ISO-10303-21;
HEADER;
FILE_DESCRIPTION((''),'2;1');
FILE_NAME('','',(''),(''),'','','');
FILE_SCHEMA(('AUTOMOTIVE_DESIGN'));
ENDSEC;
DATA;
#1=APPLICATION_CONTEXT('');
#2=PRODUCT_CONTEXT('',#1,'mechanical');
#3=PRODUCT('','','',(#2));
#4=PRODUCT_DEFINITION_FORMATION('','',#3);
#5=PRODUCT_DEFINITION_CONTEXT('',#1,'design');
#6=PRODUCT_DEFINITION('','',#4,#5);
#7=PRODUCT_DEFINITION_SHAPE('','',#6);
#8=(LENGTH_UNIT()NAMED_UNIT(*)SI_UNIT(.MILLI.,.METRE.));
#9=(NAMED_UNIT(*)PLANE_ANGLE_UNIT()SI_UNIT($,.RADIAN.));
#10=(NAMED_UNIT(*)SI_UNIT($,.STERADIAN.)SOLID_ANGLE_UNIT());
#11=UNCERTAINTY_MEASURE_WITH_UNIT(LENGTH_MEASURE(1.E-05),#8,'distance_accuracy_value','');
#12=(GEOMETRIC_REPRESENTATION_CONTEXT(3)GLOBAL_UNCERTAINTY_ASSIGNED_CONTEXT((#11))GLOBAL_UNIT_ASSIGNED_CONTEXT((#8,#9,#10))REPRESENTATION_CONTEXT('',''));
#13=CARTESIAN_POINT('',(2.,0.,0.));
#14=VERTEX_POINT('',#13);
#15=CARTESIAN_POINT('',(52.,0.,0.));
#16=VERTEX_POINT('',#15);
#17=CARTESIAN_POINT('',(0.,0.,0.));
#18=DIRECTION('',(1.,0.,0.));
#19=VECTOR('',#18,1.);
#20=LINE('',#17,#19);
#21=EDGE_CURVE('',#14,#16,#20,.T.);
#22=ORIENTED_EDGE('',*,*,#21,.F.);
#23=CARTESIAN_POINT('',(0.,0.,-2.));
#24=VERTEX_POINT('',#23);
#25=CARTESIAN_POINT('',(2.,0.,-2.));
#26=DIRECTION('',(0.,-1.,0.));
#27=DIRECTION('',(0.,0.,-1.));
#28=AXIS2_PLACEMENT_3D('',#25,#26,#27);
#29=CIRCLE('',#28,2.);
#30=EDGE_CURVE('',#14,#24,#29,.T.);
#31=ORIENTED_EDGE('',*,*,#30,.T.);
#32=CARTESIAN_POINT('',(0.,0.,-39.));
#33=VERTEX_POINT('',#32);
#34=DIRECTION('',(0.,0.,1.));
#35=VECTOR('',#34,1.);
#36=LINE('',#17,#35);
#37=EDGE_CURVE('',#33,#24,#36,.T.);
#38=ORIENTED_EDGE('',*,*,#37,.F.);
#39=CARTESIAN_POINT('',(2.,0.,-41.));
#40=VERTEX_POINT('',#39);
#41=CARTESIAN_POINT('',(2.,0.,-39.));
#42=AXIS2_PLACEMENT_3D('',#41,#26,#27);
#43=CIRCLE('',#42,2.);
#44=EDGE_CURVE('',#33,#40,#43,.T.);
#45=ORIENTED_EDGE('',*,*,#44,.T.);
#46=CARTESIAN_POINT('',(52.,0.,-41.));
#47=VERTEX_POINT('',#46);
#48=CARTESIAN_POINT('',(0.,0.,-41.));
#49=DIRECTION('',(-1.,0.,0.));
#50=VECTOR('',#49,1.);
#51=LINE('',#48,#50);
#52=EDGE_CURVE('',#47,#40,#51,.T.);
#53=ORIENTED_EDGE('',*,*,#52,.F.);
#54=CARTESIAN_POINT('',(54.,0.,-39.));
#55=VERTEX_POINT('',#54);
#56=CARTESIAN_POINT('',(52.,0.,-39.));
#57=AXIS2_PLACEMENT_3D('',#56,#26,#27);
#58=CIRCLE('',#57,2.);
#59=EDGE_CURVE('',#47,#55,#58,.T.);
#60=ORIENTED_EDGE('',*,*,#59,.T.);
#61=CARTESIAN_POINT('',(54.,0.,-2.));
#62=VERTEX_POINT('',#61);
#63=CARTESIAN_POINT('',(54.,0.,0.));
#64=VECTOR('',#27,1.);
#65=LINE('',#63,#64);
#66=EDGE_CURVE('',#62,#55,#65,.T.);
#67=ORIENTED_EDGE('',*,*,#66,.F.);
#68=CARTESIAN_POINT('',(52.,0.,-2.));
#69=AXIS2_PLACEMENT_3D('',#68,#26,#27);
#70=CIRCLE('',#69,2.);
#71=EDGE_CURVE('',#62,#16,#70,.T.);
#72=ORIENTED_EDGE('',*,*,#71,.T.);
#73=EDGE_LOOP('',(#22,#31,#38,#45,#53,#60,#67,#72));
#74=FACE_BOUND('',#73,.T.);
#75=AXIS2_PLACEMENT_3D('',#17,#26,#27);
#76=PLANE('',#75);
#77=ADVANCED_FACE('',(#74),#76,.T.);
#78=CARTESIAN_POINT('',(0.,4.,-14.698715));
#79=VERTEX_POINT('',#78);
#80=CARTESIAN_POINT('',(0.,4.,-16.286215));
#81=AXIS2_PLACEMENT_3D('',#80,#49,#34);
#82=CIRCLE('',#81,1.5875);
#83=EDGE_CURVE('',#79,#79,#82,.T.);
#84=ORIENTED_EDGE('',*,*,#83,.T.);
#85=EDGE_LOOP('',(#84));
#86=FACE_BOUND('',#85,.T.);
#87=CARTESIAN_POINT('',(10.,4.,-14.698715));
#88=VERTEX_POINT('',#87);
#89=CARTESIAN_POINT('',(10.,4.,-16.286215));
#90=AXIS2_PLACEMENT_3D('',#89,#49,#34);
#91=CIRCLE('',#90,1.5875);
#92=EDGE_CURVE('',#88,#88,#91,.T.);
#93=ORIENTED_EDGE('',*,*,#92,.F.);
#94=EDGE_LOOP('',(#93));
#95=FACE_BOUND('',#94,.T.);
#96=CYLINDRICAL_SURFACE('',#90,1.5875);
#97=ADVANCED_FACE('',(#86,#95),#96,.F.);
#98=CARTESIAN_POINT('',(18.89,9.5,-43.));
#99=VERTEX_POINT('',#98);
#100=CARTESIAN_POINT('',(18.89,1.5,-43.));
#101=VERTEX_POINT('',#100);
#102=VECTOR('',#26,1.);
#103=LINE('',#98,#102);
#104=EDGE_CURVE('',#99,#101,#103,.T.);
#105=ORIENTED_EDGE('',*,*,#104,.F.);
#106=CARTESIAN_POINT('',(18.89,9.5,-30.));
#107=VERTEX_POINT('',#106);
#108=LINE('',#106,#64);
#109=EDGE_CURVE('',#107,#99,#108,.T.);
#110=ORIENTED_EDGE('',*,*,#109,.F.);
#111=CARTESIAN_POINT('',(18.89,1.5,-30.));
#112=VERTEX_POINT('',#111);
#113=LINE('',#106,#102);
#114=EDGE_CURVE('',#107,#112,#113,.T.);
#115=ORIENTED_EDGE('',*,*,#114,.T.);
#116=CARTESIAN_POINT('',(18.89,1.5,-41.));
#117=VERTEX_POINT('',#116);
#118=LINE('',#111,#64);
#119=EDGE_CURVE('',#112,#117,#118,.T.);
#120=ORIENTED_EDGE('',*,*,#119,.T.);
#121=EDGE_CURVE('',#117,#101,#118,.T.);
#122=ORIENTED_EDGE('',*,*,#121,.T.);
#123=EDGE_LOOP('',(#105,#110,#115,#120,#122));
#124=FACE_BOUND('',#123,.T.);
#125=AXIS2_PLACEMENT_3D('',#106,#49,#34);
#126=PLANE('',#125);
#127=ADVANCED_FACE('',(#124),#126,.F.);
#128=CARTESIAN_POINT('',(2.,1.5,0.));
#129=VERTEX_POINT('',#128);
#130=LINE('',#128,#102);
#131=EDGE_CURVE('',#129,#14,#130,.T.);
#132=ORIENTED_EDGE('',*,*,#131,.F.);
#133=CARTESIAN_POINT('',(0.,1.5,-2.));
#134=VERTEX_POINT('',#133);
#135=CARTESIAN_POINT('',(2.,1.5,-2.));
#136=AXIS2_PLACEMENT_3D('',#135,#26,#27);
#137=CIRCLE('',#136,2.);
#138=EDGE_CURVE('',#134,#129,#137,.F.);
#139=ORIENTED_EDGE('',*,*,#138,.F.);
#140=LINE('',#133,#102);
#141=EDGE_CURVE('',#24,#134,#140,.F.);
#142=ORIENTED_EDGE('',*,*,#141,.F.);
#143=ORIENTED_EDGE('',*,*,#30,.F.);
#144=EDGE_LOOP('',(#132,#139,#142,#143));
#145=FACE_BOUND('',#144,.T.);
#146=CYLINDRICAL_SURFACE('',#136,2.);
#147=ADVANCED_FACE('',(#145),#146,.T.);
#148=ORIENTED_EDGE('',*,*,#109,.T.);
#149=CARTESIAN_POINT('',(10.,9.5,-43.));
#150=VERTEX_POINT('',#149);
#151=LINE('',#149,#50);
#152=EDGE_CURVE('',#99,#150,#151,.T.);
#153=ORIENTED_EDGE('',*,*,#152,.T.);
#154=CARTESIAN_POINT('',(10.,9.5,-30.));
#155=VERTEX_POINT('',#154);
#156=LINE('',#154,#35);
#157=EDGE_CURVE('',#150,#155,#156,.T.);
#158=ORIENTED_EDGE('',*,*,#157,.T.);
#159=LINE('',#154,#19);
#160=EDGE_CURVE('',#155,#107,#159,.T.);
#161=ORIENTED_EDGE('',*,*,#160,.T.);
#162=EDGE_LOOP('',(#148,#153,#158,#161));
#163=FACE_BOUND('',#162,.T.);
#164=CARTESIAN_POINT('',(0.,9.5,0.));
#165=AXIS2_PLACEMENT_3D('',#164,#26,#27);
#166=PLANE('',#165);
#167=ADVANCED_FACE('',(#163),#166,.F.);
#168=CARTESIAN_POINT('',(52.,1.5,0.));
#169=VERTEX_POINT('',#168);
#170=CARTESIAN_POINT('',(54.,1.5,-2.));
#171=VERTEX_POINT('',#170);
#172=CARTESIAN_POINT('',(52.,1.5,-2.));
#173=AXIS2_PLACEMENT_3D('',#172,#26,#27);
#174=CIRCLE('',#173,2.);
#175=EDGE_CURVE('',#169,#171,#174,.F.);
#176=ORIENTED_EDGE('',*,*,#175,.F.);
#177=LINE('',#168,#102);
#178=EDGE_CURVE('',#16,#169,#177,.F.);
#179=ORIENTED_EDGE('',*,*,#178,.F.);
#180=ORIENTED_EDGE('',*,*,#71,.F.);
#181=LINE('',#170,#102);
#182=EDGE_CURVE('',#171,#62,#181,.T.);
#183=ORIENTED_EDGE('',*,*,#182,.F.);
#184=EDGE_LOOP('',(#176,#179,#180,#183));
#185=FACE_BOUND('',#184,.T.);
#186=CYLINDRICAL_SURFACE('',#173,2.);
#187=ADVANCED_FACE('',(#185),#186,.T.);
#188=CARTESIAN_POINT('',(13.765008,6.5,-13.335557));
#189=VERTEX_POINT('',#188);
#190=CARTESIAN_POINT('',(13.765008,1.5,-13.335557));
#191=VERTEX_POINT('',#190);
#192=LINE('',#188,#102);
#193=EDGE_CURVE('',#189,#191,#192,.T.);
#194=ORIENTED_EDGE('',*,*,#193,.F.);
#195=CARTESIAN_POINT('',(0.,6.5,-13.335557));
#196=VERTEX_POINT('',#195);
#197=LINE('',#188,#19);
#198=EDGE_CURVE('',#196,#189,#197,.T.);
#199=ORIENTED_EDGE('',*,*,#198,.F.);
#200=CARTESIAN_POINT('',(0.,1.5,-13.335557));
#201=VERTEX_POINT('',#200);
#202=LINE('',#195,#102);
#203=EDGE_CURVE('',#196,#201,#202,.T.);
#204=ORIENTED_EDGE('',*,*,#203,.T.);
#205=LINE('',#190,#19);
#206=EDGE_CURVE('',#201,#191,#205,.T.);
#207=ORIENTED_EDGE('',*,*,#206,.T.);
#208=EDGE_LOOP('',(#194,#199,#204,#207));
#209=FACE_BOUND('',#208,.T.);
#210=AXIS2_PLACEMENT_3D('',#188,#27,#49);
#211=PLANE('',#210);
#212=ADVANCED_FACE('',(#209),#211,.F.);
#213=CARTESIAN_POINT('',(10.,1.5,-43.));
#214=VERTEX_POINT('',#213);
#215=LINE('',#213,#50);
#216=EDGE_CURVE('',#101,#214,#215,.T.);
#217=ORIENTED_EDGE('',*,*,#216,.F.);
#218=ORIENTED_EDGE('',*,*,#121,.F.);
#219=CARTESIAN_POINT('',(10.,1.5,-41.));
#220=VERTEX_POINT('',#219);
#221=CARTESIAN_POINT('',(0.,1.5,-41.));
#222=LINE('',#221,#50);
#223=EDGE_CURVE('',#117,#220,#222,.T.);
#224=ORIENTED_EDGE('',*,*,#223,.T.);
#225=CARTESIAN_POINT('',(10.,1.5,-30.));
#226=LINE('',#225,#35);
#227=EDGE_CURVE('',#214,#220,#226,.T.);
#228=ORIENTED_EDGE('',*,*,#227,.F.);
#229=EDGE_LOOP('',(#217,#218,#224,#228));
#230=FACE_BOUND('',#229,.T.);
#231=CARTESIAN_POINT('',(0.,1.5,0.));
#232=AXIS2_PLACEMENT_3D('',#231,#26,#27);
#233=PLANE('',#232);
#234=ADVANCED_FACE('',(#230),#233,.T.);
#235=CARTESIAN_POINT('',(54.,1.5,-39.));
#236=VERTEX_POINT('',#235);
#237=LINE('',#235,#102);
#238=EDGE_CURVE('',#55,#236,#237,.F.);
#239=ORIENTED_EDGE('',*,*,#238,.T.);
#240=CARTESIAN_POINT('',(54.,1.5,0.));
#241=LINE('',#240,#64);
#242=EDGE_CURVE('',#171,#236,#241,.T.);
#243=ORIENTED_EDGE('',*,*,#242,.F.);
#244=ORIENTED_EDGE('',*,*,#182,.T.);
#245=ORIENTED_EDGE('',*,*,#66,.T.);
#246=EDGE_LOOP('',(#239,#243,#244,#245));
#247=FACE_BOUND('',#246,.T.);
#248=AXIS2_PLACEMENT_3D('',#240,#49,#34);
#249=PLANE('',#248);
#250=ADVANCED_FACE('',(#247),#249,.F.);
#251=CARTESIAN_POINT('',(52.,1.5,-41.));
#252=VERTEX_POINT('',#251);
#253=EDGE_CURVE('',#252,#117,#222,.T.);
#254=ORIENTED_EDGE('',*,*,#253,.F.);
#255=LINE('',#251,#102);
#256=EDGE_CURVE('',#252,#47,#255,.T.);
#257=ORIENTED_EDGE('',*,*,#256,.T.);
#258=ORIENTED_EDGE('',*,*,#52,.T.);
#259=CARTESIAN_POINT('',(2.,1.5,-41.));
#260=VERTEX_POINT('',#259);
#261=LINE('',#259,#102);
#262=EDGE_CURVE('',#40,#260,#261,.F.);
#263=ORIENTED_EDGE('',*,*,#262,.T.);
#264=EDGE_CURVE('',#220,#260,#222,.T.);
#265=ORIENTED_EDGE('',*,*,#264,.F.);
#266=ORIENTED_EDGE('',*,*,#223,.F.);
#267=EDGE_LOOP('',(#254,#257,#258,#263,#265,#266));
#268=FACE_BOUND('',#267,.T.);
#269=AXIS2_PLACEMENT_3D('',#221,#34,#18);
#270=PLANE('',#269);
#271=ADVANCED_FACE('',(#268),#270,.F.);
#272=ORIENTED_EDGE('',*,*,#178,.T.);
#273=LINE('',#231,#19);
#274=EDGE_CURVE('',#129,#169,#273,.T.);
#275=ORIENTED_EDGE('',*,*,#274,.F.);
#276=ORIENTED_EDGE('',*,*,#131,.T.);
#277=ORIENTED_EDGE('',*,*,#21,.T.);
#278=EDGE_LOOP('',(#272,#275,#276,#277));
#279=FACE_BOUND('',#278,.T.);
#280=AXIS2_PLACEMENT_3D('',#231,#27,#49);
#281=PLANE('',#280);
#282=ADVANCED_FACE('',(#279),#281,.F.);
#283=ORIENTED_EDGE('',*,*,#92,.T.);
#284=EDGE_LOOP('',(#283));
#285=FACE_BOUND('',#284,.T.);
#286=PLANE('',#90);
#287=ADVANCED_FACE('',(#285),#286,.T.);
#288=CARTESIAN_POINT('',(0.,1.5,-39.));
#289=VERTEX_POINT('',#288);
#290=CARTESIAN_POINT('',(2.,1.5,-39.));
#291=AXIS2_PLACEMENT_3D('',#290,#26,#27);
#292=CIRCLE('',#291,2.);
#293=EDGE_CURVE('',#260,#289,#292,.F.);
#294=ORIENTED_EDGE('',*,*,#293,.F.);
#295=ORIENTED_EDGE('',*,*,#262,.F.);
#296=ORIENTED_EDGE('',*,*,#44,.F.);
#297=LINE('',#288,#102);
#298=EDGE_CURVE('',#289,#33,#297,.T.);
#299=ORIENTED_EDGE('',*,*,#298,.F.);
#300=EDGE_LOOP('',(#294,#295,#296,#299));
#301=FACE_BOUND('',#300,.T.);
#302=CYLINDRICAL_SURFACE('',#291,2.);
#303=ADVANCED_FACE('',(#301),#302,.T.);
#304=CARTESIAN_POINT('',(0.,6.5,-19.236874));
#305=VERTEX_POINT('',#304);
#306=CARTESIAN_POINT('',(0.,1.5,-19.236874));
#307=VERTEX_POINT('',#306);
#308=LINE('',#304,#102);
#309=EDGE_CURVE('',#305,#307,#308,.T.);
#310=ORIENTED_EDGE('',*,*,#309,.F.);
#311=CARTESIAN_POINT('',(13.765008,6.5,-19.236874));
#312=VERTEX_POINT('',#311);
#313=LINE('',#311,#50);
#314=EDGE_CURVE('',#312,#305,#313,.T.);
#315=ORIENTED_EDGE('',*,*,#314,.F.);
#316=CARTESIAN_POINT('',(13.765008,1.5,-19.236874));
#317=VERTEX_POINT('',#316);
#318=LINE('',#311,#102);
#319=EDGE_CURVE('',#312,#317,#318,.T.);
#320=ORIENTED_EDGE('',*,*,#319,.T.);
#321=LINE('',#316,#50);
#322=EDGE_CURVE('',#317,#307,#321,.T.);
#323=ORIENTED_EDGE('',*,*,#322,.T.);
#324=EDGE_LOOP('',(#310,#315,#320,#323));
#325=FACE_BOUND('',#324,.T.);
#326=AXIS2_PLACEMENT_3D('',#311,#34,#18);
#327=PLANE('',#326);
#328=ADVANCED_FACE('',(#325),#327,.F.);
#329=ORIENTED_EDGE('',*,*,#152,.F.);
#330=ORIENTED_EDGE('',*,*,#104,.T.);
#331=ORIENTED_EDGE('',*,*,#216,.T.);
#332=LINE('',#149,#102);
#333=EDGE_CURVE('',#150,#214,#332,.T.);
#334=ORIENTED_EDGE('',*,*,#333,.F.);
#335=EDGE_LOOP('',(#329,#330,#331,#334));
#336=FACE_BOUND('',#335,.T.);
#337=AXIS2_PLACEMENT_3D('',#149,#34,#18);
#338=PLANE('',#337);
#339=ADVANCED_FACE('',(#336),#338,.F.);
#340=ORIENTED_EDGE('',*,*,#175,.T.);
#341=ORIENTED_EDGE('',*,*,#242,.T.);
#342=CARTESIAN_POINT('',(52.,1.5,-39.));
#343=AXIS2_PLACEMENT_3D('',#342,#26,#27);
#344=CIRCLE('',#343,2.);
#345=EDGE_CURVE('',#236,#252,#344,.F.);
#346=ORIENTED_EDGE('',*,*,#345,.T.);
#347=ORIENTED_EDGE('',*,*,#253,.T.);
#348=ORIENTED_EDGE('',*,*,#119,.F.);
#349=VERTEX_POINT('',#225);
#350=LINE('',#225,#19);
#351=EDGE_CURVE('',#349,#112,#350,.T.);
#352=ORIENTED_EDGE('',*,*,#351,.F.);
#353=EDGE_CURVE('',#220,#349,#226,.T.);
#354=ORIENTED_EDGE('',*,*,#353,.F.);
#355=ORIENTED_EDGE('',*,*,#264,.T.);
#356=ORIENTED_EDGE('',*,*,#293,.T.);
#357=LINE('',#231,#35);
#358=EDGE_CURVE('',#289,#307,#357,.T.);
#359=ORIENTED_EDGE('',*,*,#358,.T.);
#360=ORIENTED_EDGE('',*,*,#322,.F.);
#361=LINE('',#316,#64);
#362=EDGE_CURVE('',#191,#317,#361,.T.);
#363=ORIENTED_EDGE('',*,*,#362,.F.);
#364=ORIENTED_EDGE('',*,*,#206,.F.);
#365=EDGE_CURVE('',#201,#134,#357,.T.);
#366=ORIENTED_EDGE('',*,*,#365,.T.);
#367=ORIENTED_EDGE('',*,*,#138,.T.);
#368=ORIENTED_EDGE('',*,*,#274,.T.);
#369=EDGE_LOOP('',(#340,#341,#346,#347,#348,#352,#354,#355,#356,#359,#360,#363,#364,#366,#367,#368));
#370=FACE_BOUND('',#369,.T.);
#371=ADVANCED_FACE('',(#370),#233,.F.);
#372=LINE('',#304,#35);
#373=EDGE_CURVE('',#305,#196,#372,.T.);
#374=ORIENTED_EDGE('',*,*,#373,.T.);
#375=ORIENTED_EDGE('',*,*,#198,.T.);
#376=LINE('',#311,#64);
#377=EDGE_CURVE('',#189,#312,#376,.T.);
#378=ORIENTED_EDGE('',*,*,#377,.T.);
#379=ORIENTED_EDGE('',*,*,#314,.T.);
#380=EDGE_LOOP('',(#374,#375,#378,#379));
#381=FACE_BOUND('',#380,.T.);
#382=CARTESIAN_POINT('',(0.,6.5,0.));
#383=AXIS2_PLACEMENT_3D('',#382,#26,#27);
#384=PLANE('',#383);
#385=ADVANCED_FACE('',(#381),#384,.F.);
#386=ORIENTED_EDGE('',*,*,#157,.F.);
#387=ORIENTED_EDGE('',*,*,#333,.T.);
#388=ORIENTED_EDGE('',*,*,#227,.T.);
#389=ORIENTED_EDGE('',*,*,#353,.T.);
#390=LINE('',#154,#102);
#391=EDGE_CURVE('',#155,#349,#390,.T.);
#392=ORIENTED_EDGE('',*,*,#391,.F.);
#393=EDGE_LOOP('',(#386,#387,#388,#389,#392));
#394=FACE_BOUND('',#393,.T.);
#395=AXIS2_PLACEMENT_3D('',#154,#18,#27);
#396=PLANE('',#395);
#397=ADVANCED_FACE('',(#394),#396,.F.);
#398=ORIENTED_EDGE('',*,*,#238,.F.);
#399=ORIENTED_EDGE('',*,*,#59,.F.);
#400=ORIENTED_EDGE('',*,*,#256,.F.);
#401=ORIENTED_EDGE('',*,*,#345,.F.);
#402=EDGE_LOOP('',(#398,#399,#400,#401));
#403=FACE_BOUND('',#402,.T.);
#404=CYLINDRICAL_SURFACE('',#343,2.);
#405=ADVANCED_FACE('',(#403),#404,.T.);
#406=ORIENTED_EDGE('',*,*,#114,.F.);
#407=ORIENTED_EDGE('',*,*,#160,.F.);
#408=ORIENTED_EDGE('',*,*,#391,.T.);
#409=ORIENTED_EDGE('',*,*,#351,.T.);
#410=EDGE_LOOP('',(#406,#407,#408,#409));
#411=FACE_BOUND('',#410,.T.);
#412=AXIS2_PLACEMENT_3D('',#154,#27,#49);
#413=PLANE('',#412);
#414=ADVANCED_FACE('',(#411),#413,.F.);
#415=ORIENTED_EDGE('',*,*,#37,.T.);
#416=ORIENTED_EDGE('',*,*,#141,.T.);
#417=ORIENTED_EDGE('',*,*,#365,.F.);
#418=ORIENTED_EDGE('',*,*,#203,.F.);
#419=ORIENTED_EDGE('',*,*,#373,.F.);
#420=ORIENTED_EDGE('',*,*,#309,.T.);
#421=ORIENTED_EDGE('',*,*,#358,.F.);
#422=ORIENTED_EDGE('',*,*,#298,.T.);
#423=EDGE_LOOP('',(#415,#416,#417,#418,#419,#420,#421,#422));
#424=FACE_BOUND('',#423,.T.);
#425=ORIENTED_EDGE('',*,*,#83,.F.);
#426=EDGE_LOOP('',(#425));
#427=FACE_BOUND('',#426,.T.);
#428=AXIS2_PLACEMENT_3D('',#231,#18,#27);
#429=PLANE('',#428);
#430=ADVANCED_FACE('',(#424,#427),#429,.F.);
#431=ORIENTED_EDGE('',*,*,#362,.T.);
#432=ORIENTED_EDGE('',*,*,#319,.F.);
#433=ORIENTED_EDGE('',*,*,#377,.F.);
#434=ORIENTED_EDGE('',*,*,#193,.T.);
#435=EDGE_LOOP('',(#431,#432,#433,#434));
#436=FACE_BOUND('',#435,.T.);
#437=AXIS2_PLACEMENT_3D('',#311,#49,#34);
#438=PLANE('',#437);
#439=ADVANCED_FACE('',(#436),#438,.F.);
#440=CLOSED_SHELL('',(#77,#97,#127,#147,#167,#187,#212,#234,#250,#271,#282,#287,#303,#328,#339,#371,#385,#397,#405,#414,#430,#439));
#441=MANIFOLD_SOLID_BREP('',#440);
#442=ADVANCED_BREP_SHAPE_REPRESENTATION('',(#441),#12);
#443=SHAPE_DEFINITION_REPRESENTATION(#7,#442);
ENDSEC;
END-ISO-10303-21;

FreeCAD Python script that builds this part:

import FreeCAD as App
import Part
import Sketcher
from FreeCAD import Vector
Q = App.Units.Quantity


def edges_at(feature, points):
    """Names of the edges that pass closest to the given points."""
    edges = feature.Shape.Edges
    near = lambda p: min(range(len(edges)), key=lambda i: edges[i].distToShape(Part.Vertex(*p))[0])
    return sorted({f"Edge{near(p) + 1}" for p in points})


def add_polygon(sketch, points):
    """Adds a closed chain of lines whose ends are joined by coincident constraints."""
    first, n = sketch.GeometryCount, len(points)
    for a, b in zip(points, points[1:] + points[:1]):
        sketch.addGeometry(Part.LineSegment(App.Vector(*a, 0), App.Vector(*b, 0)), False)
    for i in range(n):
        sketch.addConstraint(Sketcher.Constraint("Coincident", first + i, 2, first + (i + 1) % n, 1))

doc = App.newDocument("Part")
body = doc.addObject("PartDesign::Body", "Body")

# Sketch on XZ plane
sketch1 = doc.addObject("Sketcher::SketchObject", "Sketch")
body.addObject(sketch1)
sketch1.AttachmentSupport = (doc.XZ_Plane, [""])
sketch1.MapMode = "FlatFace"
add_polygon(sketch1, [(0, -41), (0, 0), (54, 0), (54, -41)])  # lines 0-3
sketch1.addConstraint(Sketcher.Constraint("Vertical", 0))
sketch1.addConstraint(Sketcher.Constraint("Horizontal", 1))
sketch1.addConstraint(Sketcher.Constraint("Vertical", 2))
sketch1.addConstraint(Sketcher.Constraint("Horizontal", 3))
sketch1.addConstraint(Sketcher.Constraint("Coincident", 0, 2, -1, 1))
sketch1.addConstraint(Sketcher.Constraint("DistanceX", 1, 1, 1, 2, Q("54 mm")))
sketch1.addConstraint(Sketcher.Constraint("DistanceY", 0, 1, 0, 2, Q("41 mm")))
pad1 = doc.addObject("PartDesign::Pad", "Pad")
body.addObject(pad1)
pad1.Profile = sketch1
pad1.Length = 1.5
pad1.Reversed = True

# Sketch on XZ plane
sketch2 = doc.addObject("Sketcher::SketchObject", "Sketch001")
body.addObject(sketch2)
sketch2.AttachmentSupport = (doc.XZ_Plane, [""])
sketch2.MapMode = "FlatFace"
sketch2.AttachmentOffset = App.Placement(Vector(0, 0, -1.5), App.Rotation())
add_polygon(sketch2, [(10, -43), (10, -30), (18.89, -30), (18.89, -43)])  # lines 0-3
sketch2.addConstraint(Sketcher.Constraint("Vertical", 0))
sketch2.addConstraint(Sketcher.Constraint("Horizontal", 1))
sketch2.addConstraint(Sketcher.Constraint("Vertical", 2))
sketch2.addConstraint(Sketcher.Constraint("Horizontal", 3))
sketch2.addConstraint(Sketcher.Constraint("DistanceY", 0, 1, 0, 2, Q("13 mm")))
sketch2.addConstraint(Sketcher.Constraint("DistanceX", -1, 1, 0, 2, Q("10 mm")))
sketch2.addConstraint(Sketcher.Constraint("DistanceY", 0, 2, -1, 1, Q("30 mm")))
sketch2.addConstraint(Sketcher.Constraint("DistanceX", 1, 1, 1, 2, Q("8.89 mm")))
pad2 = doc.addObject("PartDesign::Pad", "Pad001")
body.addObject(pad2)
pad2.Profile = sketch2
pad2.Length = 8
pad2.Reversed = True
doc.recompute()

fillet = doc.addObject("PartDesign::Fillet", "Fillet")
body.addObject(fillet)
fillet.Base = (pad2, edges_at(pad2, [
    (0, 0.75, -41),
    (54, 0.75, -41),
    (54, 0.75, 0),
    (0, 0.75, 0),
]))
fillet.Radius = 2

# Sketch on XZ plane
sketch3 = doc.addObject("Sketcher::SketchObject", "Sketch002")
body.addObject(sketch3)
sketch3.AttachmentSupport = (doc.XZ_Plane, [""])
sketch3.MapMode = "FlatFace"
sketch3.AttachmentOffset = App.Placement(Vector(0, 0, -1.5), App.Rotation())
add_polygon(sketch3, [(0, -19.236874), (0, -13.335557), (13.765008, -13.335557), (13.765008, -19.236874)])  # lines 0-3
sketch3.addConstraint(Sketcher.Constraint("Vertical", 0))
sketch3.addConstraint(Sketcher.Constraint("Horizontal", 1))
sketch3.addConstraint(Sketcher.Constraint("Vertical", 2))
sketch3.addConstraint(Sketcher.Constraint("Horizontal", 3))
sketch3.addConstraint(Sketcher.Constraint("PointOnObject", 0, 2, -2))
sketch3.addConstraint(Sketcher.Constraint("DistanceX", 1, 1, 1, 2, Q("13.765008 mm")))
sketch3.addConstraint(Sketcher.Constraint("DistanceY", 0, 1, 0, 2, Q("5.901317 mm")))
sketch3.addConstraint(Sketcher.Constraint("DistanceY", 0, 2, -1, 1, Q("13.335557 mm")))
pad3 = doc.addObject("PartDesign::Pad", "Pad002")
body.addObject(pad3)
pad3.Profile = sketch3
pad3.Length = 5
pad3.Reversed = True

# Sketch on YZ plane
sketch4 = doc.addObject("Sketcher::SketchObject", "Sketch003")
body.addObject(sketch4)
sketch4.AttachmentSupport = (doc.YZ_Plane, [""])
sketch4.MapMode = "FlatFace"
sketch4.addGeometry(Part.Circle(Vector(4, -16.286215, 0), Vector(0, 0, 1), 1.5875), False)
sketch4.addConstraint(Sketcher.Constraint("Diameter", 0, Q("3.175 mm")))
sketch4.addConstraint(Sketcher.Constraint("DistanceX", -1, 1, 0, 3, Q("4 mm")))
sketch4.addConstraint(Sketcher.Constraint("DistanceY", 0, 3, -1, 1, Q("16.286215 mm")))
pocket1 = doc.addObject("PartDesign::Pocket", "Pocket")
body.addObject(pocket1)
pocket1.Profile = sketch4
pocket1.Length = 10
pocket1.Reversed = True

doc.recompute()
